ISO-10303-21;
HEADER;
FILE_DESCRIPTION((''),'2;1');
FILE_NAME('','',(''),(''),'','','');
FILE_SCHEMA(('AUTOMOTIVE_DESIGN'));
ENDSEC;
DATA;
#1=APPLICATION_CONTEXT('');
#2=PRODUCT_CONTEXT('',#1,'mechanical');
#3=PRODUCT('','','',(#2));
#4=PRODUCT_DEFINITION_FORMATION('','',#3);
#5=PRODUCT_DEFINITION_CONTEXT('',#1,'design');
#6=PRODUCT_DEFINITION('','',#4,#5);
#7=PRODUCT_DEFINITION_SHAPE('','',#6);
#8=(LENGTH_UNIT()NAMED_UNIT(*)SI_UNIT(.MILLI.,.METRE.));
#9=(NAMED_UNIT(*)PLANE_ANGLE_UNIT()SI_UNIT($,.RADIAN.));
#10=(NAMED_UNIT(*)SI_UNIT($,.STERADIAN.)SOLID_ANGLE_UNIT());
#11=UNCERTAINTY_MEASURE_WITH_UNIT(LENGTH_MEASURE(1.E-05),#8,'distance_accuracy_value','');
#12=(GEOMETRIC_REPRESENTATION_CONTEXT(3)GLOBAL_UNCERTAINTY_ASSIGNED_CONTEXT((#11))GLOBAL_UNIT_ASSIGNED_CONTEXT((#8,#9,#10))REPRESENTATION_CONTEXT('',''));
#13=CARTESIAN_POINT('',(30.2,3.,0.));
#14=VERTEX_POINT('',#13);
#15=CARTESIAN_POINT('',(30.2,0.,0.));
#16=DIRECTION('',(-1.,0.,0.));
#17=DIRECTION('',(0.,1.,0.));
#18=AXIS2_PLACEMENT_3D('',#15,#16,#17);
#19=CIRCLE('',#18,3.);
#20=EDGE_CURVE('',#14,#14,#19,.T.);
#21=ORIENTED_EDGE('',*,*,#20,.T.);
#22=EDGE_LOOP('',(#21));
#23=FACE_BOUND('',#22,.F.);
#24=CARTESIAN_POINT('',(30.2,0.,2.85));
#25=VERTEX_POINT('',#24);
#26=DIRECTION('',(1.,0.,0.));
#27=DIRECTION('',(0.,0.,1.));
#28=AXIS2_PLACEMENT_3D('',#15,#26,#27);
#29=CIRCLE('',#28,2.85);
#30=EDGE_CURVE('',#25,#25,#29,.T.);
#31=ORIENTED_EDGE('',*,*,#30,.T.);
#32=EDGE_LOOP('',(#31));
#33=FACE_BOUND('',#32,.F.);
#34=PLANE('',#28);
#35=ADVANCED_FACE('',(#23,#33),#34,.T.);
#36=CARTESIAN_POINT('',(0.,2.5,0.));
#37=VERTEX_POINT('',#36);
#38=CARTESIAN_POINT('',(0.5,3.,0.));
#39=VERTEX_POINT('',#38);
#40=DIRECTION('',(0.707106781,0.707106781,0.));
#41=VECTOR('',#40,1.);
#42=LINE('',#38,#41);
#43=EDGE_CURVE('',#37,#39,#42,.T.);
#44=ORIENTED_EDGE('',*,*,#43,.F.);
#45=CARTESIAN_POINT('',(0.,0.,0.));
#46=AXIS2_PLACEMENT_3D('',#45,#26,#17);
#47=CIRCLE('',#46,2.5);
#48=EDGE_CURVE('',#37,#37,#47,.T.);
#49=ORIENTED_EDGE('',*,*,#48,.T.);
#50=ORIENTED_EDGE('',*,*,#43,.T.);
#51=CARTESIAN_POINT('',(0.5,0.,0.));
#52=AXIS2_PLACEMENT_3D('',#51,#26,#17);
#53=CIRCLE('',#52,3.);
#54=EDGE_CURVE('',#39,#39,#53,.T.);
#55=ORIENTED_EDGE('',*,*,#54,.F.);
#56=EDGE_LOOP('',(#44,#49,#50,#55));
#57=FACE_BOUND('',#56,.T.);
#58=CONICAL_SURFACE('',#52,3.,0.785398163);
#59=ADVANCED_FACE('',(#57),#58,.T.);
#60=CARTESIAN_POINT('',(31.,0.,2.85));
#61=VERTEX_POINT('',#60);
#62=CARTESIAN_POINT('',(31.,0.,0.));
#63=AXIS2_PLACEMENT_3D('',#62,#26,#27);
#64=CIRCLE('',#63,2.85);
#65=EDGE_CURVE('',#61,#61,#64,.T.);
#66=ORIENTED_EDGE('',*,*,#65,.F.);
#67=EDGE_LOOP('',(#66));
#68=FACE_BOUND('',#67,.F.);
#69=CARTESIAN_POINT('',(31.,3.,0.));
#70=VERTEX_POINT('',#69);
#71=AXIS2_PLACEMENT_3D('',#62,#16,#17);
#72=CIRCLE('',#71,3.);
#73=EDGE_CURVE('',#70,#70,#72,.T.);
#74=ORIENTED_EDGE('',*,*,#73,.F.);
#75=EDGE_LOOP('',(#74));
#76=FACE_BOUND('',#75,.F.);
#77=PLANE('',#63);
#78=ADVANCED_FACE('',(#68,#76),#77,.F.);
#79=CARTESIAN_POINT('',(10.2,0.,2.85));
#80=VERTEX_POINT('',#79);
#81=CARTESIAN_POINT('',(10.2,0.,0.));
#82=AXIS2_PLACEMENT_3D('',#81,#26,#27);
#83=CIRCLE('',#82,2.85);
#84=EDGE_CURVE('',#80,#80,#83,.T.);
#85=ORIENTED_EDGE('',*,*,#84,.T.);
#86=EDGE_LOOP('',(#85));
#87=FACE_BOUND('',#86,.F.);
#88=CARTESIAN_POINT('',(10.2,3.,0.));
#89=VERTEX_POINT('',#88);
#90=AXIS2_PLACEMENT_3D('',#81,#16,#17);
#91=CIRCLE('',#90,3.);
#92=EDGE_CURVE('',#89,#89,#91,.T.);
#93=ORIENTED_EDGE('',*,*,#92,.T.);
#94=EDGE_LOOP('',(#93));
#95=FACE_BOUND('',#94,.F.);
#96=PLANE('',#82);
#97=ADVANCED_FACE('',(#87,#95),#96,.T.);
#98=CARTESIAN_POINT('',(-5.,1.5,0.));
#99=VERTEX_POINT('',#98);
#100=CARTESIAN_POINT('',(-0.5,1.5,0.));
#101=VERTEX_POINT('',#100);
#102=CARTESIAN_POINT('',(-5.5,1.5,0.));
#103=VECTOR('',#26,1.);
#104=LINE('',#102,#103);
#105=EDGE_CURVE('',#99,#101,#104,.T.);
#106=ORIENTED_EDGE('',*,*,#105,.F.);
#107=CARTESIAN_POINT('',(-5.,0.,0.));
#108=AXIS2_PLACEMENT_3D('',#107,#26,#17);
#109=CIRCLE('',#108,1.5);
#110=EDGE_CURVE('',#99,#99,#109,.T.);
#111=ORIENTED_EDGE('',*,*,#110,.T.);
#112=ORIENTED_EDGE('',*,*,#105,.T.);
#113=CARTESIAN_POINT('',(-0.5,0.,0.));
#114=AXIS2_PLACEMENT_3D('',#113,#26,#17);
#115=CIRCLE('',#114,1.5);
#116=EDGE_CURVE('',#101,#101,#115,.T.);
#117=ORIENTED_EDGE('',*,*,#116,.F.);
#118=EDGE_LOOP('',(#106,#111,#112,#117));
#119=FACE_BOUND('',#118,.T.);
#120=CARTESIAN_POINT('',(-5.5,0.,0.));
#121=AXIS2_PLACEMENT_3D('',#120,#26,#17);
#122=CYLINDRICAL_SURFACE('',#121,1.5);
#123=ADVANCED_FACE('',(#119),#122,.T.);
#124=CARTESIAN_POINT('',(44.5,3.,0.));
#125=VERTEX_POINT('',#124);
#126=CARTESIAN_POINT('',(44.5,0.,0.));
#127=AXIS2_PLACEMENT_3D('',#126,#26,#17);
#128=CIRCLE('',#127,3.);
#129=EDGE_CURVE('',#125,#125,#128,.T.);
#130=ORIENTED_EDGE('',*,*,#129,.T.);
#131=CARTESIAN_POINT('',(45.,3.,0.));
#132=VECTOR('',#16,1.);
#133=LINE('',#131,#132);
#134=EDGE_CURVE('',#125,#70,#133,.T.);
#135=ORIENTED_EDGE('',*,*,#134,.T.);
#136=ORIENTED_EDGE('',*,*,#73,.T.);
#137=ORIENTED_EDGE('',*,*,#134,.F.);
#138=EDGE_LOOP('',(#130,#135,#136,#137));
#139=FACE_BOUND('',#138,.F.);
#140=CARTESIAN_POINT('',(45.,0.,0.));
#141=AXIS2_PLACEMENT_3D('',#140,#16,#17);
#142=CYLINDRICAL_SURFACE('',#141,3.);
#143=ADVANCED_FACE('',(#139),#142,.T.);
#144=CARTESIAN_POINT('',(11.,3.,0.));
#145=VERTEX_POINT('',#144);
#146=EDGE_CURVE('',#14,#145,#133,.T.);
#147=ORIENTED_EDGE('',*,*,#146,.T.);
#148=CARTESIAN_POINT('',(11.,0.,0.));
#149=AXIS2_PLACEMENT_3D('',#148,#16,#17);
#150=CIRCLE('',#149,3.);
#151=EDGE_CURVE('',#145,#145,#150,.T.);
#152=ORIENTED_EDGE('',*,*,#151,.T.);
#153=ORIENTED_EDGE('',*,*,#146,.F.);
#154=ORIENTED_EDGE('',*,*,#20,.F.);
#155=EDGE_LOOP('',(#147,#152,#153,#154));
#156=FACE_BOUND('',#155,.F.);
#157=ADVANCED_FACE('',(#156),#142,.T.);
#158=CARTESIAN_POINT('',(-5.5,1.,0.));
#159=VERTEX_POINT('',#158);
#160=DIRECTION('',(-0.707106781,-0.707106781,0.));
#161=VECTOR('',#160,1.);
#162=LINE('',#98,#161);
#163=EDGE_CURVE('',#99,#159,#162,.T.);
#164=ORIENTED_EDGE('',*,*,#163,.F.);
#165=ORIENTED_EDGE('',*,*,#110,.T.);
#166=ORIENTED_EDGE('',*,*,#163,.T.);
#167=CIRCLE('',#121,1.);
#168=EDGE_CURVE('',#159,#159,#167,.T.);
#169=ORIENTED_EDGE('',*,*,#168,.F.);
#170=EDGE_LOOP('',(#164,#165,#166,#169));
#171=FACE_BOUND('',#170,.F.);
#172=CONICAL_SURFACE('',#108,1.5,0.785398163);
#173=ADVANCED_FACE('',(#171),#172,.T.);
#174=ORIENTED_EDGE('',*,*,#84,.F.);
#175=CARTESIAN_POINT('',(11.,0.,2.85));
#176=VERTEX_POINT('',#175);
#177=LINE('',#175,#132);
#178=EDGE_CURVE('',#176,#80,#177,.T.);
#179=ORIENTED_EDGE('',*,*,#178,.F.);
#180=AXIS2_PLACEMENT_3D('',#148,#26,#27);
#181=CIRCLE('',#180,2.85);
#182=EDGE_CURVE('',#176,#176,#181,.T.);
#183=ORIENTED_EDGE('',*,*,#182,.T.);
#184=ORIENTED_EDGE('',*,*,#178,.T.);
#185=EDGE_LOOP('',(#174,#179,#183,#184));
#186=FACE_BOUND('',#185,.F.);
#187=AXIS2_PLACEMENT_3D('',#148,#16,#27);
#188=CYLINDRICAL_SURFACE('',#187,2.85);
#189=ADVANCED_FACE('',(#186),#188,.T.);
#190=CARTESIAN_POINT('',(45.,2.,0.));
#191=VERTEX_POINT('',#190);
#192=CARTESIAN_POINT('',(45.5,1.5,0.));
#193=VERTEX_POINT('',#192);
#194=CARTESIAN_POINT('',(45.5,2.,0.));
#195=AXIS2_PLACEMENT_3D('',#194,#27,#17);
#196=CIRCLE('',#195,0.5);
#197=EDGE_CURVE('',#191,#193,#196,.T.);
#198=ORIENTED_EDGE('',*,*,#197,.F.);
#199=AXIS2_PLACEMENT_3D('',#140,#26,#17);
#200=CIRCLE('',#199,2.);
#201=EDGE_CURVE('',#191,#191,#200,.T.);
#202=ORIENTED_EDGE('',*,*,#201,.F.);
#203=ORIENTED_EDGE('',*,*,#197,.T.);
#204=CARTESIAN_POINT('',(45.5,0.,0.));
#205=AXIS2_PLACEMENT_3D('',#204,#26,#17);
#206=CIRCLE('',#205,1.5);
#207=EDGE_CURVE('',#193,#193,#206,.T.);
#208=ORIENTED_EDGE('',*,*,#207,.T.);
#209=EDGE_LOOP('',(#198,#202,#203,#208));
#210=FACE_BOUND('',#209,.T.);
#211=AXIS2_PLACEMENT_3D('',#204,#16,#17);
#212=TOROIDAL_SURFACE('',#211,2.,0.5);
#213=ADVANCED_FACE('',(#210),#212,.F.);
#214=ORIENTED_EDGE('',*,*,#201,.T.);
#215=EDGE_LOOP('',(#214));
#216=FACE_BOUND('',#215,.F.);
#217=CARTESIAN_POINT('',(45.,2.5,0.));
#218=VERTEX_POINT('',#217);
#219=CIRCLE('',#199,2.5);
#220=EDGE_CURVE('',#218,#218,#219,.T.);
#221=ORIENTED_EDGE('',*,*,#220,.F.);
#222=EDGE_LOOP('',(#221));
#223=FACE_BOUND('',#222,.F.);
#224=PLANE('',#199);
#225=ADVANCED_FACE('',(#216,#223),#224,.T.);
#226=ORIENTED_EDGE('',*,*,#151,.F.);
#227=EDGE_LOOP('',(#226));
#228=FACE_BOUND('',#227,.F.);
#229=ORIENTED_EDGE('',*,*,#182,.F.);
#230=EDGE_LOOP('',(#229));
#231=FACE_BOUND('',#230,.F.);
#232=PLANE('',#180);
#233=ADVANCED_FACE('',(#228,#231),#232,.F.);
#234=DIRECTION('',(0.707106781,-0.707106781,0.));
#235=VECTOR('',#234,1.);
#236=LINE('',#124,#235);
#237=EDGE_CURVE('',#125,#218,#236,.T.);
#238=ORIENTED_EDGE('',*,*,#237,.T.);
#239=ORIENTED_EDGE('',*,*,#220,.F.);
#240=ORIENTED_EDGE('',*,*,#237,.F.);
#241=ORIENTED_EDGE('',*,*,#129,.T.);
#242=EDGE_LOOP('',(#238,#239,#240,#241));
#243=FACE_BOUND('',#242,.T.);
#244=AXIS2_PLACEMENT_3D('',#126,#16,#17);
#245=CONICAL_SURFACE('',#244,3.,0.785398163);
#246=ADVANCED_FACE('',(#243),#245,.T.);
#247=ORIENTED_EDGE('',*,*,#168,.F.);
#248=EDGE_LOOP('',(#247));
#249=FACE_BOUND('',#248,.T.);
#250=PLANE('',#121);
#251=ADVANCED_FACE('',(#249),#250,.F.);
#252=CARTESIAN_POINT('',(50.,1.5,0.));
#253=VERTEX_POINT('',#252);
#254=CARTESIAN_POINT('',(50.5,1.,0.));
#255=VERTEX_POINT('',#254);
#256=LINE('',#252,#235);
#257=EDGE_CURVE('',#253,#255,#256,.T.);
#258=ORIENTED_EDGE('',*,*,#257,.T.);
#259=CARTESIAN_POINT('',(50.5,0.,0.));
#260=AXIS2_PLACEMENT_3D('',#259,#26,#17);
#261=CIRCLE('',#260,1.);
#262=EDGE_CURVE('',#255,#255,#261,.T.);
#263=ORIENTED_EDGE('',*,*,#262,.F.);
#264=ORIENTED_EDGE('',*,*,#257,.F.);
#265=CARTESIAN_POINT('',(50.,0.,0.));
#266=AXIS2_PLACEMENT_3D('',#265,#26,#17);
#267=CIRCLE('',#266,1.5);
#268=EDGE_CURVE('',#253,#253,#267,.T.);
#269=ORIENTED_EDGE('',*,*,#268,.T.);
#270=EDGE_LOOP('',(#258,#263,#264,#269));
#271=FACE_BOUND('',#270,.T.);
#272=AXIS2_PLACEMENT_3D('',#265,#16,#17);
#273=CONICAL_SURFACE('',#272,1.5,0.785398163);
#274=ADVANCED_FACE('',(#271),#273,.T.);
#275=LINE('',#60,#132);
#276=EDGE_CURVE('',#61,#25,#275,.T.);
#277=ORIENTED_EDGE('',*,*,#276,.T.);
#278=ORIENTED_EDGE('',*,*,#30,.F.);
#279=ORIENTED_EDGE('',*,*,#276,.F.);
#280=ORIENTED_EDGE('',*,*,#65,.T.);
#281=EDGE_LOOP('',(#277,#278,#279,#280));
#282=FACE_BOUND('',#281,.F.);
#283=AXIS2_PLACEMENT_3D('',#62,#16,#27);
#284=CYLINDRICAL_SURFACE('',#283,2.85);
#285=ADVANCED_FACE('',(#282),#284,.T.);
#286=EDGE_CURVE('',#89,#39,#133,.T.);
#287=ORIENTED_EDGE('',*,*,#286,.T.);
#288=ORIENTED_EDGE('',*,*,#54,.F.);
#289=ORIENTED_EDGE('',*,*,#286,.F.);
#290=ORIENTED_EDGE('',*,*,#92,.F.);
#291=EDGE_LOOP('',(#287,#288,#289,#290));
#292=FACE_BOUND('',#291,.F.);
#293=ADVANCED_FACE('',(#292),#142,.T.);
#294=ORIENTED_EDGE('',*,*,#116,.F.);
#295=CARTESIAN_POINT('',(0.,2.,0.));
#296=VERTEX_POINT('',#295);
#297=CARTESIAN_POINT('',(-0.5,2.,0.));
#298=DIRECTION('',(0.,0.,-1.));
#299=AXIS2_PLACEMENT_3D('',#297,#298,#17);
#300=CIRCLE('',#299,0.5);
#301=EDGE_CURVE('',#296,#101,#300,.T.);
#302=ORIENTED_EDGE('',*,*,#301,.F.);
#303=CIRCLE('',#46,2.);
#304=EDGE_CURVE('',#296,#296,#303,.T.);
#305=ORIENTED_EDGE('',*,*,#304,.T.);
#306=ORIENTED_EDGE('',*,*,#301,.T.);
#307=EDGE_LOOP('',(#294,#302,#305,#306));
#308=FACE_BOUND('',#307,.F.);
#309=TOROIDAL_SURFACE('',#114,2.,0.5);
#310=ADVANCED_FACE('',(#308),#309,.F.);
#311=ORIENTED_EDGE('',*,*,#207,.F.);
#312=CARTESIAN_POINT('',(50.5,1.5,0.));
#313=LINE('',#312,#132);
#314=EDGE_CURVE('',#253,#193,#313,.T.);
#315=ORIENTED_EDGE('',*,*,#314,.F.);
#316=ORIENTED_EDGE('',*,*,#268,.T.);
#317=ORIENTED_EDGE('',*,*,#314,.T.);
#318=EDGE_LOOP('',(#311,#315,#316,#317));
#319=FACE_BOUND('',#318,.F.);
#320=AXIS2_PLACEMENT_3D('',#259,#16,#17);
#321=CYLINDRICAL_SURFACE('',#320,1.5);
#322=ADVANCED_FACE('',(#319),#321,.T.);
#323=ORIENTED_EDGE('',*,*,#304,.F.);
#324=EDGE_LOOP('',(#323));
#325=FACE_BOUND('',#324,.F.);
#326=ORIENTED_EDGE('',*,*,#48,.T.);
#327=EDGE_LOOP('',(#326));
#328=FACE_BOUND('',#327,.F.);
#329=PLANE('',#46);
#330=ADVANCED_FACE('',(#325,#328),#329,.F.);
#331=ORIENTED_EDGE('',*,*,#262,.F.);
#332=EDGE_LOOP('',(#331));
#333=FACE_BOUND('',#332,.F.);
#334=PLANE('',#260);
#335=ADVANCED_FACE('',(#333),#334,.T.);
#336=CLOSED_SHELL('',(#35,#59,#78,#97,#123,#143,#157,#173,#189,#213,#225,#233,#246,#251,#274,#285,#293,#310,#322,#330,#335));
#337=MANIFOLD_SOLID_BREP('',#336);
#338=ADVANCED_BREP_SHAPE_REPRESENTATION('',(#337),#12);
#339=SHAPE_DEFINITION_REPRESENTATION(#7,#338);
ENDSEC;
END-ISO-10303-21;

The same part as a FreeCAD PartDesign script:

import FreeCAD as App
import Part
import Sketcher


def edges_at(feature, points):
    """Names of the edges that pass closest to the given points."""
    edges = feature.Shape.Edges
    near = lambda p: min(range(len(edges)), key=lambda i: edges[i].distToShape(Part.Vertex(*p))[0])
    return sorted({f"Edge{near(p) + 1}" for p in points})


def add_polygon(sketch, points):
    """Adds a closed chain of lines whose ends are joined by coincident constraints."""
    first, n = sketch.GeometryCount, len(points)
    for a, b in zip(points, points[1:] + points[:1]):
        sketch.addGeometry(Part.LineSegment(App.Vector(*a, 0), App.Vector(*b, 0)), False)
    for i in range(n):
        sketch.addConstraint(Sketcher.Constraint("Coincident", first + i, 2, first + (i + 1) % n, 1))

doc = App.newDocument("Part")
params = doc.addObject("Spreadsheet::Sheet", "Params")
for row, (alias, value) in enumerate([
    ("sketch1_width", "45 mm"),
    ("sketch1_width2", "5.5 mm"),
    ("sketch1_height", "1.5 mm"),
    ("revolution_angle", "360 deg"),
    ("fillet_radius", "0.5 mm"),
    ("chamfer_size", "0.5 mm"),
    ("sketch2_width", "0.8 mm"),
    ("groove_angle", "360 deg"),
], start=1):
    params.set(f"A{row}", alias)
    params.set(f"B{row}", "=" + value)
    params.setAlias(f"B{row}", alias)

body = doc.addObject("PartDesign::Body", "Body")

sketch1 = body.newObject("Sketcher::SketchObject", "Sketch")
sketch1.AttachmentSupport = (doc.getObject("XY_Plane"), [""])
sketch1.MapMode = "FlatFace"
add_polygon(sketch1, [(0, 3), (0, 1.5), (-5.5, 1.5), (-5.5, 0), (50.5, 0), (50.5, 1.5), (45, 1.5), (45, 3)])
sketch1.addConstraint(Sketcher.Constraint("Vertical", 0))
sketch1.addConstraint(Sketcher.Constraint("Horizontal", 1))
sketch1.addConstraint(Sketcher.Constraint("Vertical", 2))
sketch1.addConstraint(Sketcher.Constraint("Horizontal", 3))
sketch1.addConstraint(Sketcher.Constraint("Vertical", 4))
sketch1.addConstraint(Sketcher.Constraint("Horizontal", 5))
sketch1.addConstraint(Sketcher.Constraint("Vertical", 6))
sketch1.addConstraint(Sketcher.Constraint("Horizontal", 7))
sketch1.addConstraint(Sketcher.Constraint("PointOnObject", 0, 2, -2))
sketch1.addConstraint(Sketcher.Constraint("PointOnObject", 2, 2, -1))
sketch1.addConstraint(Sketcher.Constraint("Horizontal", 1, 2, 4, 2))
sketch1.addConstraint(Sketcher.Constraint("Equal", 1, 5))
sketch1.addConstraint(Sketcher.Constraint("Equal", 0, 2))
sketch1.addConstraint(Sketcher.Constraint("DistanceX", 7, 2, 7, 1, 45.0))
sketch1.addConstraint(Sketcher.Constraint("DistanceX", 1, 2, 1, 1, 5.5))
sketch1.addConstraint(Sketcher.Constraint("DistanceY", 0, 2, 0, 1, 1.5))
sketch1.setExpression("Constraints[21]", "Params.sketch1_width")
sketch1.setExpression("Constraints[22]", "Params.sketch1_width2")
sketch1.setExpression("Constraints[23]", "Params.sketch1_height")
revolution = body.newObject("PartDesign::Revolution", "Revolution")
revolution.Profile = sketch1
revolution.ReferenceAxis = (sketch1, ["H_Axis"])
revolution.setExpression("Angle", "Params.revolution_angle")
doc.recompute()

fillet = body.newObject("PartDesign::Fillet", "Fillet")
fillet.Base = (revolution, edges_at(revolution, [(45, -1.5, 0), (0, -1.5, 0)]))
fillet.setExpression("Radius", "Params.fillet_radius")
doc.recompute()

chamfer = body.newObject("PartDesign::Chamfer", "Chamfer")
chamfer.Base = (fillet, edges_at(fillet, [
    (-5.5, -1.5, 0),
    (0, -3, 0),
    (45, -3, 0),
    (50.5, -1.5, 0),
]))
chamfer.setExpression("Size", "Params.chamfer_size")

sketch2 = body.newObject("Sketcher::SketchObject", "Sketch001")
sketch2.AttachmentSupport = (doc.getObject("XZ_Plane"), [""])
sketch2.MapMode = "FlatFace"
add_polygon(sketch2, [(10.2, 2.85), (10.2, 3), (11, 3), (11, 2.85)])
add_polygon(sketch2, [(30.2, 2.85), (30.2, 3), (31, 3), (31, 2.85)])
sketch2.addConstraint(Sketcher.Constraint("Vertical", 0))
sketch2.addConstraint(Sketcher.Constraint("Horizontal", 1))
sketch2.addConstraint(Sketcher.Constraint("Vertical", 2))
sketch2.addConstraint(Sketcher.Constraint("Horizontal", 3))
sketch2.addConstraint(Sketcher.Constraint("Vertical", 4))
sketch2.addConstraint(Sketcher.Constraint("Horizontal", 5))
sketch2.addConstraint(Sketcher.Constraint("Vertical", 6))
sketch2.addConstraint(Sketcher.Constraint("Horizontal", 7))
sketch2.addConstraint(Sketcher.Constraint("Horizontal", 1, 2, 4, 2))
sketch2.addConstraint(Sketcher.Constraint("Horizontal", 3, 2, 6, 2))
sketch2.addConstraint(Sketcher.Constraint("Equal", 3, 5))
sketch2.addConstraint(Sketcher.Constraint("DistanceX", 1, 1, 1, 2, 0.8))
sketch2.addConstraint(Sketcher.Constraint("DistanceX", -1, 1, 1, 2, 11.0))
sketch2.addConstraint(Sketcher.Constraint("DistanceX", 0, 2, 4, 2, 20.0))
sketch2.addConstraint(Sketcher.Constraint("DistanceY", -1, 1, 2, 2, 2.85))
sketch2.addConstraint(Sketcher.Constraint("DistanceY", -1, 1, 0, 2, 3.0))
sketch2.setExpression("Constraints[19]", "Params.sketch2_width")
groove = body.newObject("PartDesign::Groove", "Groove")
groove.Profile = sketch2
groove.ReferenceAxis = (sketch2, ["H_Axis"])
groove.setExpression("Angle", "Params.groove_angle")

doc.recompute()
